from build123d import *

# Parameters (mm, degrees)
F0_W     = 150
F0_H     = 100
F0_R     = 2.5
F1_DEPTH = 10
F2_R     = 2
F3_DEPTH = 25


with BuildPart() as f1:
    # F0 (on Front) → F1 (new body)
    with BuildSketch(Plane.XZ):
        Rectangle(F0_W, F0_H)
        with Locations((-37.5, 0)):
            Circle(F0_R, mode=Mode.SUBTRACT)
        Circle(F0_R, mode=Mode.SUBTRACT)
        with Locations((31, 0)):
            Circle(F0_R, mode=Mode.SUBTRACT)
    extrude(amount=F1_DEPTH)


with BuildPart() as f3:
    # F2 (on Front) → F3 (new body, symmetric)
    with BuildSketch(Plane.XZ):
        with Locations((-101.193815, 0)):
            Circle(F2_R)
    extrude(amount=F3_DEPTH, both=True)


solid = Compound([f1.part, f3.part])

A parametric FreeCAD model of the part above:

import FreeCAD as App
import Part
import Sketcher

V = App.Vector

doc = App.newDocument("Part")
body = doc.addObject("PartDesign::Body", "Body")

sketch1 = body.newObject("Sketcher::SketchObject", "Sketch")
sketch1.AttachmentSupport = (doc.getObject("XZ_Plane"), [""])
sketch1.MapMode = "FlatFace"
sketch1.addGeometry([
    Part.LineSegment(V(-75, 50, 0), V(-75, -50, 0)),
    Part.LineSegment(V(-75, -50, 0), V(75, -50, 0)),
    Part.LineSegment(V(75, -50, 0), V(75, 50, 0)),
    Part.LineSegment(V(75, 50, 0), V(-75, 50, 0)),
    Part.Circle(V(-37.5, 0, 0), V(0, 0, 1), 2.5),
    Part.Circle(V(0, 0, 0), V(0, 0, 1), 2.5),
    Part.Circle(V(31, 0, 0), V(0, 0, 1), 2.5),
], False)
sketch1.addConstraint([
    Sketcher.Constraint("Coincident", 0, 2, 1, 1),
    Sketcher.Constraint("Coincident", 1, 2, 2, 1),
    Sketcher.Constraint("Coincident", 2, 2, 3, 1),
    Sketcher.Constraint("Coincident", 3, 2, 0, 1),
    Sketcher.Constraint("Vertical", 0),
    Sketcher.Constraint("Horizontal", 1),
    Sketcher.Constraint("Vertical", 2),
    Sketcher.Constraint("Horizontal", 3),
    Sketcher.Constraint("Coincident", 5, 3, -1, 1),
    Sketcher.Constraint("Equal", 4, 5),
    Sketcher.Constraint("Equal", 5, 6),
    Sketcher.Constraint("Symmetric", 0, 2, 2, 2, -1, 1),
    Sketcher.Constraint("PointOnObject", 4, 3, -1),
    Sketcher.Constraint("PointOnObject", 6, 3, -1),
    Sketcher.Constraint("Diameter", 4, 5.0),
    Sketcher.Constraint("DistanceX", 1, 1, 1, 2, 150.0),
    Sketcher.Constraint("DistanceY", 0, 2, 0, 1, 100.0),
    Sketcher.Constraint("DistanceX", -1, 1, 6, 3, 31.0),
    Sketcher.Constraint("DistanceX", 4, 3, -1, 1, 37.5),
])
pad1 = body.newObject("PartDesign::Pad", "Pad")
pad1.Profile = sketch1
pad1.Length = 10
body2 = doc.addObject("PartDesign::Body", "Body001")

sketch2 = body2.newObject("Sketcher::SketchObject", "Sketch001")
sketch2.AttachmentSupport = (doc.getObject("XZ_Plane001"), [""])
sketch2.MapMode = "FlatFace"
sketch2.addGeometry(Part.Circle(V(-101.2, 0, 0), V(0, 0, 1), 2), False)
sketch2.addConstraint([
    Sketcher.Constraint("PointOnObject", 0, 3, -1),
    Sketcher.Constraint("Diameter", 0, 4.0),
    Sketcher.Constraint("DistanceX", 0, 3, -1, 1, 101.193815),
])
pad2 = body2.newObject("PartDesign::Pad", "Pad001")
pad2.Profile = sketch2
pad2.Length = 50
pad2.Midplane = True

doc.recompute()
